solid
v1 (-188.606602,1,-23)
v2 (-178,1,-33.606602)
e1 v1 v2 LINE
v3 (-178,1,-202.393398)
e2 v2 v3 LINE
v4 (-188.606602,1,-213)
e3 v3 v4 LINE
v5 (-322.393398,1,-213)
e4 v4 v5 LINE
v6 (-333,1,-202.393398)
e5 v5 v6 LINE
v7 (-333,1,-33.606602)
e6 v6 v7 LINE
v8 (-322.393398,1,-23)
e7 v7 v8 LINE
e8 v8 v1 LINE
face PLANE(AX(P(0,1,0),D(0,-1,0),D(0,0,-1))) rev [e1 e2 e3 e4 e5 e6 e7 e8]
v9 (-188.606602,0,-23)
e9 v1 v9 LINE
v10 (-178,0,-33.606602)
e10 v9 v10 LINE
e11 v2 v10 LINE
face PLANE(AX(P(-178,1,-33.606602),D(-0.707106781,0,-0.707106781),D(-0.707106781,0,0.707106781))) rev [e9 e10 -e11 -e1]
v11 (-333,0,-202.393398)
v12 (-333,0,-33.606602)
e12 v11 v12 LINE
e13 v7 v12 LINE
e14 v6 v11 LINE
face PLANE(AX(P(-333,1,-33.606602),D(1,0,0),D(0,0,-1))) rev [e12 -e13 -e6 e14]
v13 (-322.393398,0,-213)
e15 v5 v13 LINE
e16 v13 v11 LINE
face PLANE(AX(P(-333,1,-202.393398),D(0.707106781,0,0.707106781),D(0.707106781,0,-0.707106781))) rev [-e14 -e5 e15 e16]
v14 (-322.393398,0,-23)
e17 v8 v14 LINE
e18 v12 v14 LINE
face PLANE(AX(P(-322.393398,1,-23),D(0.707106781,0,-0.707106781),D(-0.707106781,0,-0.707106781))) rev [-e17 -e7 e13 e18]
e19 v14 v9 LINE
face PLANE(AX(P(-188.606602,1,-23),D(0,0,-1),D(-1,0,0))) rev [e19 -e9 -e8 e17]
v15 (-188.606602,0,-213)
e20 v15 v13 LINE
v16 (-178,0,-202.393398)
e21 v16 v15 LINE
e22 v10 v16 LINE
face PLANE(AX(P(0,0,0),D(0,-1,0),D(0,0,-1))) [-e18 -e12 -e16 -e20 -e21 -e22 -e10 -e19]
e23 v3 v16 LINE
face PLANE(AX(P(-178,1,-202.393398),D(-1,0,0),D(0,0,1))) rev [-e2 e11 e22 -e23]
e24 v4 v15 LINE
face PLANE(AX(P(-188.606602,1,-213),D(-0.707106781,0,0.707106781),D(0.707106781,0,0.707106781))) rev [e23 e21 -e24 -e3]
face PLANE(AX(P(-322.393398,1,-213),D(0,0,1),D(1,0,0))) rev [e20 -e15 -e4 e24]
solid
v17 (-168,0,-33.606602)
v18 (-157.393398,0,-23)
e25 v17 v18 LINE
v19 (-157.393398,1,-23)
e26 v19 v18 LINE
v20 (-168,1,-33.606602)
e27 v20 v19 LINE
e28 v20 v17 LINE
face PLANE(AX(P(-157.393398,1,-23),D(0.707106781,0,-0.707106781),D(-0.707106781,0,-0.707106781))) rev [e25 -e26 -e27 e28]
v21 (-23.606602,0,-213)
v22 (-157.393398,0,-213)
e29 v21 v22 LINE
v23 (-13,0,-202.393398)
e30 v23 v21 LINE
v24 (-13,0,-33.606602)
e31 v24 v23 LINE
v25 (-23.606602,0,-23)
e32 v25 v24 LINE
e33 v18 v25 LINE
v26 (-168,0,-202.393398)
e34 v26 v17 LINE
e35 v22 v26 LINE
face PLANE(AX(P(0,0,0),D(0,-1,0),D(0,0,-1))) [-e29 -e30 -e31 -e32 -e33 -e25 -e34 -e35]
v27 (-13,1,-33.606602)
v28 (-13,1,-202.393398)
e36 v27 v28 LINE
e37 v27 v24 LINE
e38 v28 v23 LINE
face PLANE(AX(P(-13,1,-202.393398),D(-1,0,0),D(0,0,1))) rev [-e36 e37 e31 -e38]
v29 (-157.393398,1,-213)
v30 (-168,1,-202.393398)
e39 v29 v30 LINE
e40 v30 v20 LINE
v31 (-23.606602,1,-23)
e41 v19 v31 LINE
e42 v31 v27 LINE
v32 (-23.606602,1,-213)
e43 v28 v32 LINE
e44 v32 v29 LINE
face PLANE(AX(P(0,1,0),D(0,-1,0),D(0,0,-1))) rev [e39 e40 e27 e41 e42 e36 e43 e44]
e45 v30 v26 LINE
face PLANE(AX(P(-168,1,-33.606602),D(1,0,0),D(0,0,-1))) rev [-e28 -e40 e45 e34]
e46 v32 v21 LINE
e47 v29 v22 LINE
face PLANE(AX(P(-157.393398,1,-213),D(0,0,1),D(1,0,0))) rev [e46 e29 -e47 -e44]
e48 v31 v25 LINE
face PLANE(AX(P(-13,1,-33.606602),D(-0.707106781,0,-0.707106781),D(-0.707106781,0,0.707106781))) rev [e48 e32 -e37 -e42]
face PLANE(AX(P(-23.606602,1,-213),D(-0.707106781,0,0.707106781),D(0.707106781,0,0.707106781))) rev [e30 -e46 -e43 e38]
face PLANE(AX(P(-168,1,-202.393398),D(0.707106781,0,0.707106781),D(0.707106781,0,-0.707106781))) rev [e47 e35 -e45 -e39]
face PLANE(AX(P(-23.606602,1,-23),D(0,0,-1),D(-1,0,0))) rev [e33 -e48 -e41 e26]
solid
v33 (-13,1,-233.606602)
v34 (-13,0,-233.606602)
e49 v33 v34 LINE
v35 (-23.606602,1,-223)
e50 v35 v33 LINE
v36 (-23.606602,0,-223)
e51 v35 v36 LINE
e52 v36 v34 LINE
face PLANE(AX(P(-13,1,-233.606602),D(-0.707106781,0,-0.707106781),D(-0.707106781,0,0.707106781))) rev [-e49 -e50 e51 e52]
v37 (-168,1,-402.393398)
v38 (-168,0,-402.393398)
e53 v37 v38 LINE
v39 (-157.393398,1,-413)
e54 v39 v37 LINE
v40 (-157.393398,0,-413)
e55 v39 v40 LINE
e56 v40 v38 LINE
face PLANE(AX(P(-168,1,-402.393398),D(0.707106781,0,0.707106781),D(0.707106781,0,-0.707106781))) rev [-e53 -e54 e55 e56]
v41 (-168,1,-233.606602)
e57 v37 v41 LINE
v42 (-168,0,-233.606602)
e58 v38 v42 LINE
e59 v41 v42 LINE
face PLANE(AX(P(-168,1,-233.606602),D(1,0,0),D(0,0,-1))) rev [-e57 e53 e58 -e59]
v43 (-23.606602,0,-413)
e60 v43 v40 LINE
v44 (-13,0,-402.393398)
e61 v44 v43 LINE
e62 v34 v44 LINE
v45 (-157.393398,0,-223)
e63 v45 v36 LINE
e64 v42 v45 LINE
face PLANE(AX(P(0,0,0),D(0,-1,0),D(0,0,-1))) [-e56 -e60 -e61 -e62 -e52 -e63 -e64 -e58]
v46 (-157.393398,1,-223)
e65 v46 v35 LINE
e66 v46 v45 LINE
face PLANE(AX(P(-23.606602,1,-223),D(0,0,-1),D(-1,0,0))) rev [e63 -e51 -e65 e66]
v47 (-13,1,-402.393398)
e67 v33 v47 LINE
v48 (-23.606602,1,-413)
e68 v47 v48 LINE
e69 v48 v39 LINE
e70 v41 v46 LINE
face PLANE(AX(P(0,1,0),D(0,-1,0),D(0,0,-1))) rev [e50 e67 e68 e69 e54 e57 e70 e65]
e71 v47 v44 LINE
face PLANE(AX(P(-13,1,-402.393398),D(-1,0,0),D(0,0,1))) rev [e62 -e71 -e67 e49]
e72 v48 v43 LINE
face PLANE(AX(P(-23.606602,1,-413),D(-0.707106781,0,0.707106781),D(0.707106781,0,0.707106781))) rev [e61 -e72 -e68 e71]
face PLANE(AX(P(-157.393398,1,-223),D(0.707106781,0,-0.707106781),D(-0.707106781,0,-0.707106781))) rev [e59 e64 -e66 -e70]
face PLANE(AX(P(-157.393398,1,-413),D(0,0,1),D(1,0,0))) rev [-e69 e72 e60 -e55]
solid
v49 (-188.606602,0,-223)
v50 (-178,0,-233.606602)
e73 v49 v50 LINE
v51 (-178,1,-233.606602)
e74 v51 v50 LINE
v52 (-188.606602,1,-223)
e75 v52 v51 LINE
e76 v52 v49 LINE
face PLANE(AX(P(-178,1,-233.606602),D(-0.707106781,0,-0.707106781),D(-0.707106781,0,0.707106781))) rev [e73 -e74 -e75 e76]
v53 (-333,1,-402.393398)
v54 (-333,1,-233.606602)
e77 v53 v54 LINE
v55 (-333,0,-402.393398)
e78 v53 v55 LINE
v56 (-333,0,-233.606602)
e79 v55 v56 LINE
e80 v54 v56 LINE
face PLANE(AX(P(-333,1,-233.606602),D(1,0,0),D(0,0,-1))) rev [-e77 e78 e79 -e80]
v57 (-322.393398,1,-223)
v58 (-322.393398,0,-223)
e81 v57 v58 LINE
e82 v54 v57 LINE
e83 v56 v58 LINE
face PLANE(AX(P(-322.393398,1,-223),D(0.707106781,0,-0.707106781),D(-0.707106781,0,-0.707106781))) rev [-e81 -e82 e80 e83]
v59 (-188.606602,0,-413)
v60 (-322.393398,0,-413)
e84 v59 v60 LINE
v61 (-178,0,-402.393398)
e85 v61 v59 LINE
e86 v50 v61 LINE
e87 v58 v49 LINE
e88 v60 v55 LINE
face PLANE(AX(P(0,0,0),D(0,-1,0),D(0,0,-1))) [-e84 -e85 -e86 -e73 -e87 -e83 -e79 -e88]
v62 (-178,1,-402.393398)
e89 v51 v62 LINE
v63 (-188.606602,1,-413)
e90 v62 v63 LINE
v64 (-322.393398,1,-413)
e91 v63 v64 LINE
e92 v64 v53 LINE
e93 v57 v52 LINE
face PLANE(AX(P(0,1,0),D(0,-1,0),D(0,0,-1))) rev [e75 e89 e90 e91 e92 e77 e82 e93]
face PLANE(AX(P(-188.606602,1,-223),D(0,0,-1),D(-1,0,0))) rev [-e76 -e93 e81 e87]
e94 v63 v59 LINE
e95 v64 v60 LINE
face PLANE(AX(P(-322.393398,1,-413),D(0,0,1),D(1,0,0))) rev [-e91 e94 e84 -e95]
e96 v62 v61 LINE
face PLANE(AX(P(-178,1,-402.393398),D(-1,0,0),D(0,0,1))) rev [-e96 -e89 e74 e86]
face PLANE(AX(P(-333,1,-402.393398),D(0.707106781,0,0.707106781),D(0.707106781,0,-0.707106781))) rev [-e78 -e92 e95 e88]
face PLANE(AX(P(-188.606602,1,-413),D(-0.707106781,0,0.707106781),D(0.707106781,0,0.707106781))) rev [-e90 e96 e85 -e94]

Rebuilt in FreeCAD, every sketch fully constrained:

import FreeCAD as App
import Part
import Sketcher
from FreeCAD import Vector
Q = App.Units.Quantity


def add_polygon(sketch, points):
    """Adds a closed chain of lines whose ends are joined by coincident constraints."""
    first, n = sketch.GeometryCount, len(points)
    for a, b in zip(points, points[1:] + points[:1]):
        sketch.addGeometry(Part.LineSegment(App.Vector(*a, 0), App.Vector(*b, 0)), False)
    for i in range(n):
        sketch.addConstraint(Sketcher.Constraint("Coincident", first + i, 2, first + (i + 1) % n, 1))

doc = App.newDocument("Part")
body = doc.addObject("PartDesign::Body", "Body")

sketch1 = body.newObject("Sketcher::SketchObject", "Sketch")
sketch1.AttachmentSupport = (doc.getObject("XZ_Plane"), [""])
sketch1.MapMode = "FlatFace"
add_polygon(sketch1, [(-157, -213), (-168, -202), (-168, -34), (-157, -23), (-24, -23), (-13, -34), (-13, -202), (-24, -213)])
sketch1.addConstraint([
    Sketcher.Constraint("Vertical", 1),
    Sketcher.Constraint("Horizontal", 3),
    Sketcher.Constraint("Vertical", 5),
    Sketcher.Constraint("Horizontal", 7),
    Sketcher.Constraint("Perpendicular", 0, 2),
    Sketcher.Constraint("Perpendicular", 2, 4),
    Sketcher.Constraint("Perpendicular", 4, 6),
    Sketcher.Constraint("Horizontal", 1, 2, 4, 2),
    Sketcher.Constraint("Horizontal", 0, 2, 5, 2),
    Sketcher.Constraint("Vertical", 3, 2, 6, 2),
    Sketcher.Constraint("Vertical", 2, 2, 7, 2),
    Sketcher.Constraint("Distance", 0, Q("15 mm")),
    Sketcher.Constraint("DistanceX", 0, 2, -1, 1, Q("168 mm")),
    Sketcher.Constraint("DistanceY", 2, 2, -1, 1, Q("23 mm")),
    Sketcher.Constraint("DistanceX", 4, 2, -1, 1, Q("13 mm")),
    Sketcher.Constraint("DistanceY", 6, 2, -1, 1, Q("213 mm")),
])
pad1 = body.newObject("PartDesign::Pad", "Pad")
pad1.Profile = sketch1
pad1.Length = 1
pad1.Reversed = True
body2 = doc.addObject("PartDesign::Body", "Body001")

sketch2 = body2.newObject("Sketcher::SketchObject", "Sketch001")
sketch2.AttachmentSupport = (doc.getObject("XZ_Plane001"), [""])
sketch2.MapMode = "FlatFace"
add_polygon(sketch2, [(-322, -213), (-333, -202), (-333, -34), (-322, -23), (-189, -23), (-178, -34), (-178, -202), (-189, -213)])
sketch2.addConstraint([
    Sketcher.Constraint("Vertical", 1),
    Sketcher.Constraint("Horizontal", 3),
    Sketcher.Constraint("Vertical", 5),
    Sketcher.Constraint("Horizontal", 7),
    Sketcher.Constraint("Perpendicular", 0, 2),
    Sketcher.Constraint("Perpendicular", 2, 4),
    Sketcher.Constraint("Perpendicular", 4, 6),
    Sketcher.Constraint("Horizontal", 1, 2, 4, 2),
    Sketcher.Constraint("Horizontal", 0, 2, 5, 2),
    Sketcher.Constraint("Vertical", 3, 2, 6, 2),
    Sketcher.Constraint("Vertical", 2, 2, 7, 2),
    Sketcher.Constraint("Distance", 0, Q("15 mm")),
    Sketcher.Constraint("DistanceX", 0, 2, -1, 1, Q("333 mm")),
    Sketcher.Constraint("DistanceY", 2, 2, -1, 1, Q("23 mm")),
    Sketcher.Constraint("DistanceX", 4, 2, -1, 1, Q("178 mm")),
    Sketcher.Constraint("DistanceY", 6, 2, -1, 1, Q("213 mm")),
])
pad2 = body2.newObject("PartDesign::Pad", "Pad001")
pad2.Profile = sketch2
pad2.Length = 1
pad2.Reversed = True
body3 = doc.addObject("PartDesign::Body", "Body002")

sketch3 = body3.newObject("Sketcher::SketchObject", "Sketch002")
sketch3.AttachmentSupport = (doc.getObject("XZ_Plane002"), [""])
sketch3.MapMode = "FlatFace"
add_polygon(sketch3, [(-322, -413), (-333, -402), (-333, -234), (-322, -223), (-189, -223), (-178, -234), (-178, -402), (-189, -413)])
sketch3.addConstraint([
    Sketcher.Constraint("Vertical", 1),
    Sketcher.Constraint("Horizontal", 3),
    Sketcher.Constraint("Vertical", 5),
    Sketcher.Constraint("Horizontal", 7),
    Sketcher.Constraint("Perpendicular", 0, 2),
    Sketcher.Constraint("Perpendicular", 2, 4),
    Sketcher.Constraint("Perpendicular", 4, 6),
    Sketcher.Constraint("Horizontal", 1, 2, 4, 2),
    Sketcher.Constraint("Horizontal", 0, 2, 5, 2),
    Sketcher.Constraint("Vertical", 3, 2, 6, 2),
    Sketcher.Constraint("Vertical", 2, 2, 7, 2),
    Sketcher.Constraint("Distance", 0, Q("15 mm")),
    Sketcher.Constraint("DistanceX", 0, 2, -1, 1, Q("333 mm")),
    Sketcher.Constraint("DistanceY", 2, 2, -1, 1, Q("223 mm")),
    Sketcher.Constraint("DistanceX", 4, 2, -1, 1, Q("178 mm")),
    Sketcher.Constraint("DistanceY", 6, 2, -1, 1, Q("413 mm")),
])
pad3 = body3.newObject("PartDesign::Pad", "Pad002")
pad3.Profile = sketch3
pad3.Length = 1
pad3.Reversed = True
body4 = doc.addObject("PartDesign::Body", "Body003")

sketch4 = body4.newObject("Sketcher::SketchObject", "Sketch003")
sketch4.AttachmentSupport = (doc.getObject("XZ_Plane003"), [""])
sketch4.MapMode = "FlatFace"
add_polygon(sketch4, [(-157, -413), (-168, -402), (-168, -234), (-157, -223), (-24, -223), (-13, -234), (-13, -402), (-24, -413)])
sketch4.addConstraint([
    Sketcher.Constraint("Vertical", 1),
    Sketcher.Constraint("Horizontal", 3),
    Sketcher.Constraint("Vertical", 5),
    Sketcher.Constraint("Horizontal", 7),
    Sketcher.Constraint("Perpendicular", 0, 2),
    Sketcher.Constraint("Perpendicular", 2, 4),
    Sketcher.Constraint("Perpendicular", 4, 6),
    Sketcher.Constraint("Horizontal", 1, 2, 4, 2),
    Sketcher.Constraint("Horizontal", 0, 2, 5, 2),
    Sketcher.Constraint("Vertical", 3, 2, 6, 2),
    Sketcher.Constraint("Vertical", 2, 2, 7, 2),
    Sketcher.Constraint("Distance", 0, Q("15 mm")),
    Sketcher.Constraint("DistanceX", 0, 2, -1, 1, Q("168 mm")),
    Sketcher.Constraint("DistanceY", 2, 2, -1, 1, Q("223 mm")),
    Sketcher.Constraint("DistanceX", 4, 2, -1, 1, Q("13 mm")),
    Sketcher.Constraint("DistanceY", 6, 2, -1, 1, Q("413 mm")),
])
pad4 = body4.newObject("PartDesign::Pad", "Pad003")
pad4.Profile = sketch4
pad4.Length = 1
pad4.Reversed = True

doc.recompute()
